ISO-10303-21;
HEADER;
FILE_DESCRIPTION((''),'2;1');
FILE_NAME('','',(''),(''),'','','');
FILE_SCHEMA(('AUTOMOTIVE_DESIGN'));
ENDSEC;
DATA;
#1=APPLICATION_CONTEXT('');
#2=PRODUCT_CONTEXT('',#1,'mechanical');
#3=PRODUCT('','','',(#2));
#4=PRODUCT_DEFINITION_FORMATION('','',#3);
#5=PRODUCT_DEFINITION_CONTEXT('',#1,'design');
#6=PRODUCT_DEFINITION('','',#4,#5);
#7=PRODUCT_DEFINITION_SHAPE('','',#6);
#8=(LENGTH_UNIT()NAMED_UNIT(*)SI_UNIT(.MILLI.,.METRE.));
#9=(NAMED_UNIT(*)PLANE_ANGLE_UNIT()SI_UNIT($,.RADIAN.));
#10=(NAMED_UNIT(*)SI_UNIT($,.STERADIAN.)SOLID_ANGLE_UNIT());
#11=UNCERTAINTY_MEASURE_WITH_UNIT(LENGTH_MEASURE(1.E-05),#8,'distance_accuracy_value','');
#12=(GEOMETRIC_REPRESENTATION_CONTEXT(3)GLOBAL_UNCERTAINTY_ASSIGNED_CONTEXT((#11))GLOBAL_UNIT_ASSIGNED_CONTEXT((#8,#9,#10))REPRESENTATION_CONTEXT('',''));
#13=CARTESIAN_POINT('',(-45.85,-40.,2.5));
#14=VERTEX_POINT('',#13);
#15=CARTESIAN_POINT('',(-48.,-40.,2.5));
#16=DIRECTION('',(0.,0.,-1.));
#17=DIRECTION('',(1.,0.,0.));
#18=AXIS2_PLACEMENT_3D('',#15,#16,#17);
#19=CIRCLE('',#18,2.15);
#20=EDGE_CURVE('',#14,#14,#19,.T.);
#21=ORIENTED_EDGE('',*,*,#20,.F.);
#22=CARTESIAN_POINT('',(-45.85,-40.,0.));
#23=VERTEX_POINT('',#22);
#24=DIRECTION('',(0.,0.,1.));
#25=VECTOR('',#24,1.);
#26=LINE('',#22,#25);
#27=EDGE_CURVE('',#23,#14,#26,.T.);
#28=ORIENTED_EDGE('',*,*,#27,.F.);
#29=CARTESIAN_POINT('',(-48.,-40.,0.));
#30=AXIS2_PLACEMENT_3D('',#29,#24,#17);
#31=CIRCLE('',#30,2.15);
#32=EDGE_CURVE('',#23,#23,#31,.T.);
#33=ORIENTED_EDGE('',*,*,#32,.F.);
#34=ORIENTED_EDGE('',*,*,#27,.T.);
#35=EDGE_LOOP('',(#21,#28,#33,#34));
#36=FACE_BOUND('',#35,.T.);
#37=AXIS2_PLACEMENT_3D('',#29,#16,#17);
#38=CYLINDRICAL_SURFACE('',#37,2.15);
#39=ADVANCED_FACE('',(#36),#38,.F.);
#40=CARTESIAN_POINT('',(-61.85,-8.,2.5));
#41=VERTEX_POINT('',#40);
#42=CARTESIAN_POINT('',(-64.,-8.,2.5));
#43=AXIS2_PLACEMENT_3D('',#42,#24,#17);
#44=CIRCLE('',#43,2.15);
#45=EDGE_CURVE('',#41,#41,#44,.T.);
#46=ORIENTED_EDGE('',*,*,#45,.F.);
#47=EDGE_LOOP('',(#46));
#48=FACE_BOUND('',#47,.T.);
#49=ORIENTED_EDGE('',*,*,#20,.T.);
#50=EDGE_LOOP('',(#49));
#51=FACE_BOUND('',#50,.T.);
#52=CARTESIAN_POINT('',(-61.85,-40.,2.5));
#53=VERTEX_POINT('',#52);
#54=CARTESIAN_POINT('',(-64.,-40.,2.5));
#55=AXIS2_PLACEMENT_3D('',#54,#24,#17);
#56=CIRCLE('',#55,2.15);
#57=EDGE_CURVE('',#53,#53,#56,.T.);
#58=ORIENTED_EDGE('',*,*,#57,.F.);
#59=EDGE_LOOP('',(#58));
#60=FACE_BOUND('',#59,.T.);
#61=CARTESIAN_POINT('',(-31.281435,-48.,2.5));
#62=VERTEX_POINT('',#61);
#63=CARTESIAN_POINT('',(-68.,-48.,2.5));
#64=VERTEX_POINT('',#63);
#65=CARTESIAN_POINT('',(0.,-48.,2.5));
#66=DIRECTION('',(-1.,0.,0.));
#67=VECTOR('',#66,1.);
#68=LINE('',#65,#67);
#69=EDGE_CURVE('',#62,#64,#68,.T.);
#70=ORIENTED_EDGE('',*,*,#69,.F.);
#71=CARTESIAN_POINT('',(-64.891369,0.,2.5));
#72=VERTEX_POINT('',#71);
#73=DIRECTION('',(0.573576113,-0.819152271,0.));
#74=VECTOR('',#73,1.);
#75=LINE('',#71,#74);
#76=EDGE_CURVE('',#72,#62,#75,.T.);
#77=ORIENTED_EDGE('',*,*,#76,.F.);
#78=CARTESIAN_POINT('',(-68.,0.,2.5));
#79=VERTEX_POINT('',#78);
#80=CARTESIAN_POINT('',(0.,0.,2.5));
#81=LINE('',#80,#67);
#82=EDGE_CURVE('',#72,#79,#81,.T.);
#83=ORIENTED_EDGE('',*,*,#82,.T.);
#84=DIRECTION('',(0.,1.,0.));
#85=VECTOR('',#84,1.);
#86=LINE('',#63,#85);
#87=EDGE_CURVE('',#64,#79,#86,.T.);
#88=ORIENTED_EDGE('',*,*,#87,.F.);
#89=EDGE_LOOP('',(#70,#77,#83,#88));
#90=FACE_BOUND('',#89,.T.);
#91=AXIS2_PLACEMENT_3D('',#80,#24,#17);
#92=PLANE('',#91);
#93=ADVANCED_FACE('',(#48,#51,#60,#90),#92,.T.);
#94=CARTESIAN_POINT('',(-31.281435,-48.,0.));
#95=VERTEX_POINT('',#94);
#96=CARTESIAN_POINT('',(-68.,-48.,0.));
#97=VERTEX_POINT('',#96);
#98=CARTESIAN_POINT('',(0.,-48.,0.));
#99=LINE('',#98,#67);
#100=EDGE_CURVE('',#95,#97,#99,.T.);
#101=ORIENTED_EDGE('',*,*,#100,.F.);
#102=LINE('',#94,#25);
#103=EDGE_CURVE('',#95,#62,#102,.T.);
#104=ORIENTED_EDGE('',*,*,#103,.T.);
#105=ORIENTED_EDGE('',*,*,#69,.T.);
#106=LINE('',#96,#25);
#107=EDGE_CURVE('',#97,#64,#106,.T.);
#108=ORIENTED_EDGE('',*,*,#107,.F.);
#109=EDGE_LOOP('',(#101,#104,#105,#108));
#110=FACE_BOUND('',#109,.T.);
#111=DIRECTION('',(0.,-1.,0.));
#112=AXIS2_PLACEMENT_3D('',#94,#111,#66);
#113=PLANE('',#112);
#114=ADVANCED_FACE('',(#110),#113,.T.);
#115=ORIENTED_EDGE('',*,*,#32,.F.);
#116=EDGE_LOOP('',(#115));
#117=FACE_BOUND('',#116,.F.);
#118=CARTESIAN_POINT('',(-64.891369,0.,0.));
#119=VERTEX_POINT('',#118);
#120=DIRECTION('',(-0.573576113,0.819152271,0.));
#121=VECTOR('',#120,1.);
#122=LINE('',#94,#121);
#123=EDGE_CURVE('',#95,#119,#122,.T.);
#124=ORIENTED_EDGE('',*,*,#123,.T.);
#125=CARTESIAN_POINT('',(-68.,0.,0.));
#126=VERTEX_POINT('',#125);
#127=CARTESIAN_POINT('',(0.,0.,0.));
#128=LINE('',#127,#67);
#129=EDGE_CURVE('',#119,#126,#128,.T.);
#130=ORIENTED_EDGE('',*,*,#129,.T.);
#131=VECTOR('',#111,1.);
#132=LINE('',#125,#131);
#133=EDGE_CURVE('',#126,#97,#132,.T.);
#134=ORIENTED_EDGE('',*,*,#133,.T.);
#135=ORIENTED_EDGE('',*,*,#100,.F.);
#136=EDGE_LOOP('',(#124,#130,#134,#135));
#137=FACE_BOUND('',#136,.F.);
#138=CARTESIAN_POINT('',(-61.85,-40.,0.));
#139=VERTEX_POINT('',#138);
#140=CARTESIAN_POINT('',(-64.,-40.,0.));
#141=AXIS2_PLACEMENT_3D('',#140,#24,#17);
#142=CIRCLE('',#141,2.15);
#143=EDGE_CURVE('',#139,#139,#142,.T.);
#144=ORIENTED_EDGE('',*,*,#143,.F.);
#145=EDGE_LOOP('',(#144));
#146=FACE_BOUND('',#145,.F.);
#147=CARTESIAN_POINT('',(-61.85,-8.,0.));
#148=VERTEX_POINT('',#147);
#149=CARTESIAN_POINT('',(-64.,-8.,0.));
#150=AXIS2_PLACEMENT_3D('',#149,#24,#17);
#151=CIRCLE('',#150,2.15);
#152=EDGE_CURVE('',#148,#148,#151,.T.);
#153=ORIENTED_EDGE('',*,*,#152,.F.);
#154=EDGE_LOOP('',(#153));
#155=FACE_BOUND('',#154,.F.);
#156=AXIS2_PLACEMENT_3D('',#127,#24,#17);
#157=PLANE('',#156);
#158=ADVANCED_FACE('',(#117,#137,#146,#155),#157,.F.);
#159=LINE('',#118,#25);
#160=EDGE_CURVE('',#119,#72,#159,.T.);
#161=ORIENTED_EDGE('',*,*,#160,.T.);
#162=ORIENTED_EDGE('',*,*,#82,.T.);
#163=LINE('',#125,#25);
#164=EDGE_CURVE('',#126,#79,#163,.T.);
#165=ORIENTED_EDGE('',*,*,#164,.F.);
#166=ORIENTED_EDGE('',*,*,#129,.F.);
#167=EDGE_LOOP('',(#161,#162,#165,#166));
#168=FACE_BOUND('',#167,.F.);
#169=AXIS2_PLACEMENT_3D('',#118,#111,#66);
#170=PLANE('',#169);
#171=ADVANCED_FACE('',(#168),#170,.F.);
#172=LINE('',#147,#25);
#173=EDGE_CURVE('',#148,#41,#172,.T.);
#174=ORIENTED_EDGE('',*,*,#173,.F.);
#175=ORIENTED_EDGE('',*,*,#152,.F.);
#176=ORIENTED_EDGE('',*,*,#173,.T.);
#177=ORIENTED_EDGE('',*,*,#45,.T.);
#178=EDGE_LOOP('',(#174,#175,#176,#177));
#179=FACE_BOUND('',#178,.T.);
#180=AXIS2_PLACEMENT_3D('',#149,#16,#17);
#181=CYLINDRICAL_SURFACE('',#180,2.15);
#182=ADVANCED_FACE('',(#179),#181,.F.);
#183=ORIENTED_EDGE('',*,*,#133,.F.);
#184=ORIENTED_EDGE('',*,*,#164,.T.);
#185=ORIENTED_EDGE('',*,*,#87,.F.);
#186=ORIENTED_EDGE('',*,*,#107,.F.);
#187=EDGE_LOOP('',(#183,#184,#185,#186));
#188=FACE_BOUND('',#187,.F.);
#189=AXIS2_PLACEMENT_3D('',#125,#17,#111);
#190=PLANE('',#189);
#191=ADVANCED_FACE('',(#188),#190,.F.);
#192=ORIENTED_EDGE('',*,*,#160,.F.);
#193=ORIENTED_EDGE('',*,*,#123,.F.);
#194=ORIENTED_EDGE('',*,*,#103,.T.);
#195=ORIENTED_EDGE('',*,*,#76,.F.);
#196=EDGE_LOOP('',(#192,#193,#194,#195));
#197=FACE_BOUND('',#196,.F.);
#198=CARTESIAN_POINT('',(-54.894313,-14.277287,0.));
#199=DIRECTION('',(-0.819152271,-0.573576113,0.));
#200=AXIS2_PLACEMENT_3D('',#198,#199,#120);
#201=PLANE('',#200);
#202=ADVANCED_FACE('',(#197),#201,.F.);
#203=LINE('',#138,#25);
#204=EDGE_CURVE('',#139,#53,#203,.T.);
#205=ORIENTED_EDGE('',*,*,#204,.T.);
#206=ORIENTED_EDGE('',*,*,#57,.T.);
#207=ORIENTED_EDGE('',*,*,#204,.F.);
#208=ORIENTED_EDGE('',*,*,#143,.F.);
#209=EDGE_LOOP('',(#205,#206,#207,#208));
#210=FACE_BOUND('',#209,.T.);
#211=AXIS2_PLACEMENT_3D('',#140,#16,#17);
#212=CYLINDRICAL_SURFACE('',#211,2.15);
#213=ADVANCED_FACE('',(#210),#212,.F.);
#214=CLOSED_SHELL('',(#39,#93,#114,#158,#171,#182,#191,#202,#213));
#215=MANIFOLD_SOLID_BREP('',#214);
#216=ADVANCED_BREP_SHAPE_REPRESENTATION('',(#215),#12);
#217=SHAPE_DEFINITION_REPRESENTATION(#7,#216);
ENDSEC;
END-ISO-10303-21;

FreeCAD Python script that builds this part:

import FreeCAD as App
import Part
import Sketcher
from FreeCAD import Vector
Q = App.Units.Quantity


def add_polygon(sketch, points):
    """Adds a closed chain of lines whose ends are joined by coincident constraints."""
    first, n = sketch.GeometryCount, len(points)
    for a, b in zip(points, points[1:] + points[:1]):
        sketch.addGeometry(Part.LineSegment(App.Vector(*a, 0), App.Vector(*b, 0)), False)
    for i in range(n):
        sketch.addConstraint(Sketcher.Constraint("Coincident", first + i, 2, first + (i + 1) % n, 1))

doc = App.newDocument("Part")
params = doc.addObject("Spreadsheet::Sheet", "Params")
for row, (alias, value) in enumerate([
    ("sketch1_diameter", "4.3 mm"),
    ("sketch1_height", "48 mm"),
    ("pad1_length", "2.5 mm"),
], start=1):
    params.set(f"A{row}", alias)
    params.set(f"B{row}", "=" + value)
    params.setAlias(f"B{row}", alias)

body = doc.addObject("PartDesign::Body", "Body")

# Sketch on XY plane
sketch1 = body.newObject("Sketcher::SketchObject", "Sketch")
sketch1.AttachmentSupport = (doc.getObject("XY_Plane"), [""])
sketch1.MapMode = "FlatFace"
add_polygon(sketch1, [(-64.9, 0), (-68, 0), (-68, -48), (-31.3, -48)])  # lines 0-3
sketch1.addGeometry(Part.Circle(Vector(-64, -40, 0), Vector(0, 0, 1), 2.1), False)  # 4
sketch1.addGeometry(Part.Circle(Vector(-48, -40, 0), Vector(0, 0, 1), 2.1), False)  # 5
sketch1.addGeometry(Part.Circle(Vector(-64, -8, 0), Vector(0, 0, 1), 2.1), False)  # 6
sketch1.addConstraint(Sketcher.Constraint("Horizontal", 0))
sketch1.addConstraint(Sketcher.Constraint("Vertical", 1))
sketch1.addConstraint(Sketcher.Constraint("Horizontal", 2))
sketch1.addConstraint(Sketcher.Constraint("Equal", 4, 5))
sketch1.addConstraint(Sketcher.Constraint("Equal", 5, 6))
sketch1.addConstraint(Sketcher.Constraint("PointOnObject", 0, 2, -1))
sketch1.addConstraint(Sketcher.Constraint("Horizontal", 4, 3, 5, 3))
sketch1.addConstraint(Sketcher.Constraint("Vertical", 4, 3, 6, 3))
sketch1.addConstraint(Sketcher.Constraint("DistanceX", 0, 2, 6, 3, Q("4 mm")))
sketch1.addConstraint(Sketcher.Constraint("Diameter", 4, Q("4.3 mm")))
sketch1.addConstraint(Sketcher.Constraint("DistanceY", 1, 2, 1, 1, Q("48 mm")))
sketch1.addConstraint(Sketcher.Constraint("Angle", 3, Q("125 deg")))
sketch1.addConstraint(Sketcher.Constraint("DistanceX", 4, 3, -1, 1, Q("64 mm")))
sketch1.addConstraint(Sketcher.Constraint("DistanceY", 4, 3, -1, 1, Q("40 mm")))
sketch1.addConstraint(Sketcher.Constraint("DistanceX", 5, 3, -1, 1, Q("48 mm")))
sketch1.addConstraint(Sketcher.Constraint("DistanceY", 6, 3, -1, 1, Q("8 mm")))
sketch1.addConstraint(Sketcher.Constraint("DistanceX", 0, 2, 0, 1, Q("3.1086 mm")))
sketch1.setExpression("Constraints[13]", "Params.sketch1_diameter")
sketch1.setExpression("Constraints[14]", "Params.sketch1_height")
pad1 = body.newObject("PartDesign::Pad", "Pad")
pad1.Profile = sketch1
pad1.setExpression("Length", "Params.pad1_length")

doc.recompute()
